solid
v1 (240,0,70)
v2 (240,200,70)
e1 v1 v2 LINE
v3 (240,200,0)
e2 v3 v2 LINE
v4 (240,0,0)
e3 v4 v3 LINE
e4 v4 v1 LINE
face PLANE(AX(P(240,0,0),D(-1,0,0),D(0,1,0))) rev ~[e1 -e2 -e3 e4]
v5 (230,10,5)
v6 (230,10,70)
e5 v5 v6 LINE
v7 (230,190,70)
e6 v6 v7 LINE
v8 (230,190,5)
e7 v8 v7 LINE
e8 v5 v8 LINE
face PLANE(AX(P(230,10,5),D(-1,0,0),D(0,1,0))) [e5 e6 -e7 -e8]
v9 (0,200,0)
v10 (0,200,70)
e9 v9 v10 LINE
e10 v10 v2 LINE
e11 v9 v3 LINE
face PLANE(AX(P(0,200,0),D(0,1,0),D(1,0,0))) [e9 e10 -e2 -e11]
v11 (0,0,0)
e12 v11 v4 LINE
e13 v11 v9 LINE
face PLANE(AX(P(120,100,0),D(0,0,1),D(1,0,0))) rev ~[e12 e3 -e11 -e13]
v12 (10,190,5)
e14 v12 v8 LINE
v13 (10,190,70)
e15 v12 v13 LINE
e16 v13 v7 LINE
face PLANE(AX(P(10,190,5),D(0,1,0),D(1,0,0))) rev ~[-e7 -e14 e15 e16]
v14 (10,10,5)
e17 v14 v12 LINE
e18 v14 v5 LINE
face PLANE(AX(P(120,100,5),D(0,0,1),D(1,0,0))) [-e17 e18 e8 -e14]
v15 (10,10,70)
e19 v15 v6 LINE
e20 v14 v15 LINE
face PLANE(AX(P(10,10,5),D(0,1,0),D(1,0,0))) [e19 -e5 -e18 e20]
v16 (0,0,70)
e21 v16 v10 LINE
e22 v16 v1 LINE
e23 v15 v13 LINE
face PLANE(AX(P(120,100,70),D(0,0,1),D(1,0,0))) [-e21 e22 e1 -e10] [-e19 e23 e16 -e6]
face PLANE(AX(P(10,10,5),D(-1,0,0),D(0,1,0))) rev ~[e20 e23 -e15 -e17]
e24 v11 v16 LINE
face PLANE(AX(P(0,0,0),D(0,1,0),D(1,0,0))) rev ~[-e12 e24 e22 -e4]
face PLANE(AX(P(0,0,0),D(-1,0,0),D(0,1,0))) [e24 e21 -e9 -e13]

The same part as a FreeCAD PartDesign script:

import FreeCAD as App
import Part
import Sketcher
Q = App.Units.Quantity


def add_polygon(sketch, points):
    """Adds a closed chain of lines whose ends are joined by coincident constraints."""
    first, n = sketch.GeometryCount, len(points)
    for a, b in zip(points, points[1:] + points[:1]):
        sketch.addGeometry(Part.LineSegment(App.Vector(*a, 0), App.Vector(*b, 0)), False)
    for i in range(n):
        sketch.addConstraint(Sketcher.Constraint("Coincident", first + i, 2, first + (i + 1) % n, 1))

doc = App.newDocument("Part")
params = doc.addObject("Spreadsheet::Sheet", "Params")
for row, (alias, value) in enumerate([
    ("sketch1_width", "220 mm"),
    ("sketch1_height", "180 mm"),
    ("pad1_length", "65 mm"),
    ("sketch2_width", "240 mm"),
    ("sketch2_height", "200 mm"),
    ("pad2_length", "70 mm"),
], start=1):
    params.set(f"A{row}", alias)
    params.set(f"B{row}", "=" + value)
    params.setAlias(f"B{row}", alias)

body = doc.addObject("PartDesign::Body", "Body")

# Sketch on XY plane
sketch1 = doc.addObject("Sketcher::SketchObject", "Sketch")
body.addObject(sketch1)
sketch1.AttachmentSupport = (doc.XY_Plane, [""])
sketch1.MapMode = "FlatFace"
sketch1.AttachmentOffset = App.Placement(App.Vector(0, 0, 5), App.Rotation())
add_polygon(sketch1, [(10, 190), (10, 10), (230, 10), (230, 190)])  # lines 0-3
sketch1.addConstraint(Sketcher.Constraint("Vertical", 0))
sketch1.addConstraint(Sketcher.Constraint("Horizontal", 1))
sketch1.addConstraint(Sketcher.Constraint("Vertical", 2))
sketch1.addConstraint(Sketcher.Constraint("Horizontal", 3))
sketch1.addConstraint(Sketcher.Constraint("DistanceX", 1, 1, 1, 2, Q("220 mm")))
sketch1.addConstraint(Sketcher.Constraint("DistanceY", 0, 2, 0, 1, Q("180 mm")))
sketch1.addConstraint(Sketcher.Constraint("DistanceX", -1, 1, 0, 2, Q("10 mm")))
sketch1.addConstraint(Sketcher.Constraint("DistanceY", -1, 1, 0, 2, Q("10 mm")))
sketch1.setExpression("Constraints[8]", "Params.sketch1_width")
sketch1.setExpression("Constraints[9]", "Params.sketch1_height")
pad1 = doc.addObject("PartDesign::Pad", "Pad")
body.addObject(pad1)
pad1.Profile = sketch1
pad1.setExpression("Length", "Params.pad1_length")
body2 = doc.addObject("PartDesign::Body", "Body001")

# Sketch on XY plane
sketch2 = doc.addObject("Sketcher::SketchObject", "Sketch001")
body2.addObject(sketch2)
sketch2.AttachmentSupport = (doc.getObject("XY_Plane001"), [""])
sketch2.MapMode = "FlatFace"
add_polygon(sketch2, [(0, 200), (0, 0), (240, 0), (240, 200)])  # lines 0-3
sketch2.addConstraint(Sketcher.Constraint("Vertical", 0))
sketch2.addConstraint(Sketcher.Constraint("Horizontal", 1))
sketch2.addConstraint(Sketcher.Constraint("Vertical", 2))
sketch2.addConstraint(Sketcher.Constraint("Horizontal", 3))
sketch2.addConstraint(Sketcher.Constraint("Coincident", 0, 2, -1, 1))
sketch2.addConstraint(Sketcher.Constraint("DistanceX", 1, 1, 1, 2, Q("240 mm")))
sketch2.addConstraint(Sketcher.Constraint("DistanceY", 0, 2, 0, 1, Q("200 mm")))
sketch2.setExpression("Constraints[9]", "Params.sketch2_width")
sketch2.setExpression("Constraints[10]", "Params.sketch2_height")
pad2 = doc.addObject("PartDesign::Pad", "Pad001")
body2.addObject(pad2)
pad2.Profile = sketch2
pad2.setExpression("Length", "Params.pad2_length")
doc.recompute()

boolean = doc.addObject("PartDesign::Boolean", "Boolean")
body2.addObject(boolean)
boolean.Type = "Cut"
boolean.addObjects([body])

doc.recompute()
